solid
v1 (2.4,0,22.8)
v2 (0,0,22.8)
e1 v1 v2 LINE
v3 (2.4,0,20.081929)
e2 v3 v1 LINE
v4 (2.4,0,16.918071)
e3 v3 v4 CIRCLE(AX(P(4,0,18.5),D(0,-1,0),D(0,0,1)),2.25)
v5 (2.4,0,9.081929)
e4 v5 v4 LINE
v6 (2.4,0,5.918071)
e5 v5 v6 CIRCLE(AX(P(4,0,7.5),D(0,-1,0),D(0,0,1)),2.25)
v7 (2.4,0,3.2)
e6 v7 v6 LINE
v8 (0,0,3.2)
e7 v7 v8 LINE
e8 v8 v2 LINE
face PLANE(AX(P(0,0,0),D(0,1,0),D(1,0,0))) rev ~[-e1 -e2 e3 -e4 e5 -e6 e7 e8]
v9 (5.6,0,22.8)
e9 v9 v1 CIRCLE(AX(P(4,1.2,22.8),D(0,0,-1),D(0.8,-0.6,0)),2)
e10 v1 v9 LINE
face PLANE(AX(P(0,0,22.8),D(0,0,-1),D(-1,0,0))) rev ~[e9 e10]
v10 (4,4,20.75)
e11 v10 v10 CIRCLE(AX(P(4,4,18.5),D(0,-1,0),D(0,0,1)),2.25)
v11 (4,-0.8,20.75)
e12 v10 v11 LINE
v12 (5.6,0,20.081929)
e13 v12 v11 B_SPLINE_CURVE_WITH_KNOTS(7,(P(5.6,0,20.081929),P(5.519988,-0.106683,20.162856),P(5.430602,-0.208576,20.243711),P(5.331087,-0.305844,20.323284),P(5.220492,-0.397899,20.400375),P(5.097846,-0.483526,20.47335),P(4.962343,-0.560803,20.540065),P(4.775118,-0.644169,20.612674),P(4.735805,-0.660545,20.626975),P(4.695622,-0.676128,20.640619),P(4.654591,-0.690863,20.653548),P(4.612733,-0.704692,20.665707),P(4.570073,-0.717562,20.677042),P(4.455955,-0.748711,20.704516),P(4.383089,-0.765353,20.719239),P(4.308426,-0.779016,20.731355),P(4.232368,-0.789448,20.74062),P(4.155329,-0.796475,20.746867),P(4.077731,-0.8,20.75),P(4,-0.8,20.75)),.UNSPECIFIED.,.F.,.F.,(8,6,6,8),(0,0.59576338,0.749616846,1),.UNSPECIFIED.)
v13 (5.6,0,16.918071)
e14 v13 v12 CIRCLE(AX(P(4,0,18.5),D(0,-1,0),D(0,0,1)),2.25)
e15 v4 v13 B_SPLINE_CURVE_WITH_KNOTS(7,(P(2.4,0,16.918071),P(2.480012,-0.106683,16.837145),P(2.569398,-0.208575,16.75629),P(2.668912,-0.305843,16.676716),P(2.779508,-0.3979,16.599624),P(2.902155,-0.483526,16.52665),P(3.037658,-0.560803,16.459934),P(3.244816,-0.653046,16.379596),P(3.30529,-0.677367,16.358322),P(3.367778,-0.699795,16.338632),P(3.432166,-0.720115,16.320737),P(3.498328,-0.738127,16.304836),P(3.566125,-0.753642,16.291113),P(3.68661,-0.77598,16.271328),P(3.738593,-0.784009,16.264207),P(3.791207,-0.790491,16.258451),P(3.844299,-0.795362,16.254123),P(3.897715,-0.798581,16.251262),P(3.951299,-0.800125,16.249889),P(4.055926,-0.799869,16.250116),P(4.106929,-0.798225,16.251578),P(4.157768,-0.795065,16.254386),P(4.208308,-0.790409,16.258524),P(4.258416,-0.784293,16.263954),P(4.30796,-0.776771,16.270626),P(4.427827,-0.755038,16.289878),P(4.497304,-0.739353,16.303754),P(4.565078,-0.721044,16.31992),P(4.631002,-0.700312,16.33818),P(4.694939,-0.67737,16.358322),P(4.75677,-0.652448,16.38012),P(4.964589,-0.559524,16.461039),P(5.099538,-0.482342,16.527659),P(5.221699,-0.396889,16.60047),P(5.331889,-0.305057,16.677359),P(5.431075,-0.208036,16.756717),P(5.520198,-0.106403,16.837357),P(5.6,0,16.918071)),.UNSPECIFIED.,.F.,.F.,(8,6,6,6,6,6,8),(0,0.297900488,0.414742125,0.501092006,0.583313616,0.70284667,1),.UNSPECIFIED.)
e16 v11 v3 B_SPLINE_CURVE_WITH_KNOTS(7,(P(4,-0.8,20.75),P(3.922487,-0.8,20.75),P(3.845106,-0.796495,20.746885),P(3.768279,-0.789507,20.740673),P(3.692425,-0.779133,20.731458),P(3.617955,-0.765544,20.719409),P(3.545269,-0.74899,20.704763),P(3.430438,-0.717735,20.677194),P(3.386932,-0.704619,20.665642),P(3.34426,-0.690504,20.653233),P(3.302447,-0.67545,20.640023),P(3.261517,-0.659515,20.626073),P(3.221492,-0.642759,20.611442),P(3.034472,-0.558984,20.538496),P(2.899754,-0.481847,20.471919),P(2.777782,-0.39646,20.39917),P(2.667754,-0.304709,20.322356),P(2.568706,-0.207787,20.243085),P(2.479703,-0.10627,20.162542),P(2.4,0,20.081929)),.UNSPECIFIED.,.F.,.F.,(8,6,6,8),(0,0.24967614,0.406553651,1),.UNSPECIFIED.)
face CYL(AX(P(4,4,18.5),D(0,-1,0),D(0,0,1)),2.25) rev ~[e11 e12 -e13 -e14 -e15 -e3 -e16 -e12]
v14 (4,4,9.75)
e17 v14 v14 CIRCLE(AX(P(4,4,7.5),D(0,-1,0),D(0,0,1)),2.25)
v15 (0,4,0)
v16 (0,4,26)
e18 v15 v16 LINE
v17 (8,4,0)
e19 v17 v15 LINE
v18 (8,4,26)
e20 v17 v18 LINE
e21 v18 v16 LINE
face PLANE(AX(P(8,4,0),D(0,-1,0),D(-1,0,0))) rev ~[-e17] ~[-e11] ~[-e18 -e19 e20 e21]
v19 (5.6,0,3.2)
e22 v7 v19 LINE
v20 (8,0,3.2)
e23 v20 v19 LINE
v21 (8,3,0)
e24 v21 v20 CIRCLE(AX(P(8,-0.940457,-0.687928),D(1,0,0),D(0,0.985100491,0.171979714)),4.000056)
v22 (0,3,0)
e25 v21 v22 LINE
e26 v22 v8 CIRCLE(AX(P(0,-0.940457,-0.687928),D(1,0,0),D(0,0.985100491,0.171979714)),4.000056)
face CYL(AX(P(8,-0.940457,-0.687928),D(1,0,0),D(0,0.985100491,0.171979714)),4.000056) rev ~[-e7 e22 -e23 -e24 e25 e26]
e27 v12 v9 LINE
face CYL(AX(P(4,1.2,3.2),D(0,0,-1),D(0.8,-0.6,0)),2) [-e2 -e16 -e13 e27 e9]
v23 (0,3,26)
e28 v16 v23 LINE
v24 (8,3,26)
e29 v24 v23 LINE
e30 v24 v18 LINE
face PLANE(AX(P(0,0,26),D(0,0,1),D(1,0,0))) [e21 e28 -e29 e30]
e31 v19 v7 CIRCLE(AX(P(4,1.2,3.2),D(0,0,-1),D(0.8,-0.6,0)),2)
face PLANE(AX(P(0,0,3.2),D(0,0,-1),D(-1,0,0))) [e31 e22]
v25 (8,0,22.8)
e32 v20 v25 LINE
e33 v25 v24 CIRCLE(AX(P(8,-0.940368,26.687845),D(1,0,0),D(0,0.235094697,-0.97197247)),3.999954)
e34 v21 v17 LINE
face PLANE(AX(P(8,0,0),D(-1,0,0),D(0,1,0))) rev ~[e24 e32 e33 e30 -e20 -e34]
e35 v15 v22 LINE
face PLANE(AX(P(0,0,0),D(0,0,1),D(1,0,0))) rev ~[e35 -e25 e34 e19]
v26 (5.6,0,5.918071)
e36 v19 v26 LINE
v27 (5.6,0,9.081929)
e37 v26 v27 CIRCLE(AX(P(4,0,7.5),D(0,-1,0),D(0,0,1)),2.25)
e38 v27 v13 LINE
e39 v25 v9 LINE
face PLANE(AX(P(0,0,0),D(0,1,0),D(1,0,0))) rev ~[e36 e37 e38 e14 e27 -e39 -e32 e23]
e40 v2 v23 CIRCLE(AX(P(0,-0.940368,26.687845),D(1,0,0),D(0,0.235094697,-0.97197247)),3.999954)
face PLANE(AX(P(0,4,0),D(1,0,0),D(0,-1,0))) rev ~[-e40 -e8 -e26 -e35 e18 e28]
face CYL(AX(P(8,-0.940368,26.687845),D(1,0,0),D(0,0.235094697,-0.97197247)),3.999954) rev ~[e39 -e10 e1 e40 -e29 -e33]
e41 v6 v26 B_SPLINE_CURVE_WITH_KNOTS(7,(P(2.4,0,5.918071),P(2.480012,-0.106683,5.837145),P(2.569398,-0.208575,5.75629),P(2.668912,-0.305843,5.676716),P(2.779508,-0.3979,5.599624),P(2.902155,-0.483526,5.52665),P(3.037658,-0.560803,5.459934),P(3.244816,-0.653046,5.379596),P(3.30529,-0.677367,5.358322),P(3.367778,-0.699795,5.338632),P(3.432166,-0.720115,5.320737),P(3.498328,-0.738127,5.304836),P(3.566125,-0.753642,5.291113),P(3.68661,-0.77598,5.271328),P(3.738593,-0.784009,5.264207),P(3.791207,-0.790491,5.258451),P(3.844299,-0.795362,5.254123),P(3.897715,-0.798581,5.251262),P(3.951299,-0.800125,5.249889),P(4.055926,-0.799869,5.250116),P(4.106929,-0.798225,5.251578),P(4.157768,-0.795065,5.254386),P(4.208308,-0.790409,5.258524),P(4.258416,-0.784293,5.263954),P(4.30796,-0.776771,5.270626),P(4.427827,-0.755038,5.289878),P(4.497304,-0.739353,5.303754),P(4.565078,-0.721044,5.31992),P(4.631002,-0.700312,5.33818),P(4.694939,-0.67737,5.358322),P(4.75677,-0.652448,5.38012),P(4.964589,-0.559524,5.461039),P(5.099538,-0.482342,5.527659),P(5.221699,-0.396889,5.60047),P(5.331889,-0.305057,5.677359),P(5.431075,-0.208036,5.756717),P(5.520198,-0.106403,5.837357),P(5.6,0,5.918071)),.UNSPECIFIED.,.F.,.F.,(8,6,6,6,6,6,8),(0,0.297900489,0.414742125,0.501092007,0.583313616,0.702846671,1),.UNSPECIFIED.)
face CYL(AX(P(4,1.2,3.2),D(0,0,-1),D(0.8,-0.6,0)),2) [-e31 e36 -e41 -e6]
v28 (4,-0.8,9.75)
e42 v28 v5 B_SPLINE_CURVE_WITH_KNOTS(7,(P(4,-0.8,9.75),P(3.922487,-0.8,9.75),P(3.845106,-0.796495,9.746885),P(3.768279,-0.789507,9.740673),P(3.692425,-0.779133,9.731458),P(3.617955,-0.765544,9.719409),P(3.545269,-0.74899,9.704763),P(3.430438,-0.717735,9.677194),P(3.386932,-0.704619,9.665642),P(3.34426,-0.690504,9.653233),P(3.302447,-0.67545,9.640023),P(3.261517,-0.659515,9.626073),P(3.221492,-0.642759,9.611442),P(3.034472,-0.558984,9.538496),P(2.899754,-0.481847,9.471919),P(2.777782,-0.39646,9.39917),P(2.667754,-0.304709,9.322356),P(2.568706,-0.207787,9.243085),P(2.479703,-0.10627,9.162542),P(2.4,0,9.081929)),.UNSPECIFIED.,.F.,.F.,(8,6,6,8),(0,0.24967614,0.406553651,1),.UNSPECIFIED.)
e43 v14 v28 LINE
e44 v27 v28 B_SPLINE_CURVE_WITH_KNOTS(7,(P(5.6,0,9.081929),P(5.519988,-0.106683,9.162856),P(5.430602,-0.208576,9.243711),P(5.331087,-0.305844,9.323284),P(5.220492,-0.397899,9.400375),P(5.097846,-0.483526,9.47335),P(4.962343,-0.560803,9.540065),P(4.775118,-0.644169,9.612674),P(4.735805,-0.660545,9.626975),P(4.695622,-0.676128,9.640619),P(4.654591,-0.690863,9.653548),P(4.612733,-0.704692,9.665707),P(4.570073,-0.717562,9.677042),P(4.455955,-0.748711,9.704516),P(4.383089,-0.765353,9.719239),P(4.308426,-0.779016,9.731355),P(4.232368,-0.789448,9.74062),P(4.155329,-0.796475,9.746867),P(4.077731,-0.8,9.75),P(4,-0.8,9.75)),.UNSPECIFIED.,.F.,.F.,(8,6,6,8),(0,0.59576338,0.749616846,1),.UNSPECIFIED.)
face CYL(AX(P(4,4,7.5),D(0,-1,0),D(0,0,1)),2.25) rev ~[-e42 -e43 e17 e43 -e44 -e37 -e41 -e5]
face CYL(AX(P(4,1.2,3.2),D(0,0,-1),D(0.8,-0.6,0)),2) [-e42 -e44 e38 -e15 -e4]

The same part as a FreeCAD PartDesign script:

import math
import FreeCAD as App
import Part
import Sketcher
from FreeCAD import Vector
Q = App.Units.Quantity

doc = App.newDocument("Part")
body = doc.addObject("PartDesign::Body", "Body")

sketch1 = body.newObject("Sketcher::SketchObject", "Sketch")
sketch1.AttachmentSupport = (doc.getObject("XY_Plane"), [""])
sketch1.MapMode = "FlatFace"
sketch1.addGeometry(Part.LineSegment(Vector(0, 4, 0), Vector(0, 0, 0)), False)
sketch1.addGeometry(Part.LineSegment(Vector(0, 0, 0), Vector(8, 0, 0)), False)
sketch1.addGeometry(Part.LineSegment(Vector(8, 0, 0), Vector(8, 4, 0)), False)
sketch1.addGeometry(Part.LineSegment(Vector(8, 4, 0), Vector(0, 4, 0)), False)
sketch1.addConstraint(Sketcher.Constraint("Coincident", 0, 2, 1, 1))
sketch1.addConstraint(Sketcher.Constraint("Coincident", 1, 2, 2, 1))
sketch1.addConstraint(Sketcher.Constraint("Coincident", 2, 2, 3, 1))
sketch1.addConstraint(Sketcher.Constraint("Coincident", 3, 2, 0, 1))
sketch1.addConstraint(Sketcher.Constraint("Vertical", 0))
sketch1.addConstraint(Sketcher.Constraint("Horizontal", 1))
sketch1.addConstraint(Sketcher.Constraint("Vertical", 2))
sketch1.addConstraint(Sketcher.Constraint("Horizontal", 3))
sketch1.addConstraint(Sketcher.Constraint("Coincident", 0, 2, -1, 1))
sketch1.addConstraint(Sketcher.Constraint("DistanceX", 1, 1, 1, 2, Q("8 mm")))
sketch1.addConstraint(Sketcher.Constraint("DistanceY", 0, 2, 0, 1, Q("4 mm")))
pad1 = body.newObject("PartDesign::Pad", "Pad")
pad1.Profile = sketch1
pad1.Length = 26

sketch2 = body.newObject("Sketcher::SketchObject", "Sketch001")
sketch2.AttachmentSupport = (doc.getObject("YZ_Plane"), [""])
sketch2.MapMode = "FlatFace"
sketch2.AttachmentOffset = App.Placement(Vector(0, 0, 8), App.Rotation())
sketch2.addGeometry(Part.LineSegment(Vector(0, 3.2, 0), Vector(0, 0, 0)), False)
sketch2.addGeometry(Part.LineSegment(Vector(0, 0, 0), Vector(3, 0, 0)), False)
sketch2.addGeometry(Part.ArcOfCircle(Part.Circle(Vector(-0.9, -0.7, 0), Vector(0, 0, 1), 4), math.radians(10), math.radians(76)), False)
sketch2.addGeometry(Part.LineSegment(Vector(0, 26, 0), Vector(0, 22.8, 0)), False)
sketch2.addGeometry(Part.ArcOfCircle(Part.Circle(Vector(-0.9, 26.7, 0), Vector(0, 0, 1), 4), math.radians(-76), math.radians(-10)), False)
sketch2.addGeometry(Part.LineSegment(Vector(3, 26, 0), Vector(0, 26, 0)), False)
sketch2.addConstraint(Sketcher.Constraint("Coincident", 0, 2, 1, 1))
sketch2.addConstraint(Sketcher.Constraint("Coincident", 1, 2, 2, 1))
sketch2.addConstraint(Sketcher.Constraint("Coincident", 2, 2, 0, 1))
sketch2.addConstraint(Sketcher.Constraint("Coincident", 3, 2, 4, 1))
sketch2.addConstraint(Sketcher.Constraint("Coincident", 4, 2, 5, 1))
sketch2.addConstraint(Sketcher.Constraint("Coincident", 5, 2, 3, 1))
sketch2.addConstraint(Sketcher.Constraint("Vertical", 0))
sketch2.addConstraint(Sketcher.Constraint("Horizontal", 1))
sketch2.addConstraint(Sketcher.Constraint("Vertical", 3))
sketch2.addConstraint(Sketcher.Constraint("Horizontal", 5))
sketch2.addConstraint(Sketcher.Constraint("Coincident", 0, 2, -1, 1))
sketch2.addConstraint(Sketcher.Constraint("Equal", 2, 4))
sketch2.addConstraint(Sketcher.Constraint("PointOnObject", 3, 2, -2))
sketch2.addConstraint(Sketcher.Constraint("Vertical", 2, 3, 4, 3))
sketch2.addConstraint(Sketcher.Constraint("Vertical", 1, 2, 4, 2))
sketch2.addConstraint(Sketcher.Constraint("Radius", 2, Q("4 mm")))
sketch2.addConstraint(Sketcher.Constraint("DistanceY", 0, 2, 0, 1, Q("3.2 mm")))
sketch2.addConstraint(Sketcher.Constraint("DistanceX", 1, 1, 1, 2, Q("3 mm")))
sketch2.addConstraint(Sketcher.Constraint("DistanceY", -1, 1, 4, 2, Q("26 mm")))
pocket1 = body.newObject("PartDesign::Pocket", "Pocket")
pocket1.Profile = sketch2
pocket1.Type = "UpToFirst"

sketch3 = body.newObject("Sketcher::SketchObject", "Sketch002")
sketch3.AttachmentSupport = (doc.getObject("XY_Plane"), [""])
sketch3.MapMode = "FlatFace"
sketch3.AttachmentOffset = App.Placement(Vector(0, 0, 3.2), App.Rotation())
sketch3.addGeometry(Part.ArcOfCircle(Part.Circle(Vector(4, 1.2, 0), Vector(0, 0, 1), 2), math.radians(-143), math.radians(-37)), False)
sketch3.addGeometry(Part.LineSegment(Vector(2.4, 0, 0), Vector(5.6, 0, 0)), False)
sketch3.addConstraint(Sketcher.Constraint("Coincident", 0, 1, 1, 1))
sketch3.addConstraint(Sketcher.Constraint("Coincident", 1, 2, 0, 2))
sketch3.addConstraint(Sketcher.Constraint("Horizontal", 1))
sketch3.addConstraint(Sketcher.Constraint("PointOnObject", 0, 1, -1))
sketch3.addConstraint(Sketcher.Constraint("Radius", 0, Q("2 mm")))
sketch3.addConstraint(Sketcher.Constraint("DistanceX", -1, 1, 0, 3, Q("4 mm")))
sketch3.addConstraint(Sketcher.Constraint("DistanceY", -1, 1, 0, 3, Q("1.2 mm")))
pad2 = body.newObject("PartDesign::Pad", "Pad001")
pad2.Profile = sketch3
pad2.Length = 19.6

sketch4 = body.newObject("Sketcher::SketchObject", "Sketch003")
sketch4.AttachmentSupport = (doc.getObject("XZ_Plane"), [""])
sketch4.MapMode = "FlatFace"
sketch4.AttachmentOffset = App.Placement(Vector(0, 0, -4), App.Rotation())
sketch4.addGeometry(Part.Circle(Vector(4, 7.5, 0), Vector(0, 0, 1), 2.2), False)
sketch4.addGeometry(Part.Circle(Vector(4, 18.5, 0), Vector(0, 0, 1), 2.2), False)
sketch4.addConstraint(Sketcher.Constraint("Equal", 0, 1))
sketch4.addConstraint(Sketcher.Constraint("Vertical", 0, 3, 1, 3))
sketch4.addConstraint(Sketcher.Constraint("Diameter", 0, Q("4.5 mm")))
sketch4.addConstraint(Sketcher.Constraint("DistanceX", -1, 1, 0, 3, Q("4 mm")))
sketch4.addConstraint(Sketcher.Constraint("DistanceY", 0, 3, 1, 3, Q("11 mm")))
sketch4.addConstraint(Sketcher.Constraint("DistanceY", -1, 1, 0, 3, Q("7.5 mm")))
doc.recompute()
hole = body.newObject("PartDesign::Hole", "Hole")
hole.Profile = sketch4
hole.ThreadType = "None"
hole.Diameter = 4.5
hole.DepthType = "ThroughAll"
hole.Reversed = True

doc.recompute()
